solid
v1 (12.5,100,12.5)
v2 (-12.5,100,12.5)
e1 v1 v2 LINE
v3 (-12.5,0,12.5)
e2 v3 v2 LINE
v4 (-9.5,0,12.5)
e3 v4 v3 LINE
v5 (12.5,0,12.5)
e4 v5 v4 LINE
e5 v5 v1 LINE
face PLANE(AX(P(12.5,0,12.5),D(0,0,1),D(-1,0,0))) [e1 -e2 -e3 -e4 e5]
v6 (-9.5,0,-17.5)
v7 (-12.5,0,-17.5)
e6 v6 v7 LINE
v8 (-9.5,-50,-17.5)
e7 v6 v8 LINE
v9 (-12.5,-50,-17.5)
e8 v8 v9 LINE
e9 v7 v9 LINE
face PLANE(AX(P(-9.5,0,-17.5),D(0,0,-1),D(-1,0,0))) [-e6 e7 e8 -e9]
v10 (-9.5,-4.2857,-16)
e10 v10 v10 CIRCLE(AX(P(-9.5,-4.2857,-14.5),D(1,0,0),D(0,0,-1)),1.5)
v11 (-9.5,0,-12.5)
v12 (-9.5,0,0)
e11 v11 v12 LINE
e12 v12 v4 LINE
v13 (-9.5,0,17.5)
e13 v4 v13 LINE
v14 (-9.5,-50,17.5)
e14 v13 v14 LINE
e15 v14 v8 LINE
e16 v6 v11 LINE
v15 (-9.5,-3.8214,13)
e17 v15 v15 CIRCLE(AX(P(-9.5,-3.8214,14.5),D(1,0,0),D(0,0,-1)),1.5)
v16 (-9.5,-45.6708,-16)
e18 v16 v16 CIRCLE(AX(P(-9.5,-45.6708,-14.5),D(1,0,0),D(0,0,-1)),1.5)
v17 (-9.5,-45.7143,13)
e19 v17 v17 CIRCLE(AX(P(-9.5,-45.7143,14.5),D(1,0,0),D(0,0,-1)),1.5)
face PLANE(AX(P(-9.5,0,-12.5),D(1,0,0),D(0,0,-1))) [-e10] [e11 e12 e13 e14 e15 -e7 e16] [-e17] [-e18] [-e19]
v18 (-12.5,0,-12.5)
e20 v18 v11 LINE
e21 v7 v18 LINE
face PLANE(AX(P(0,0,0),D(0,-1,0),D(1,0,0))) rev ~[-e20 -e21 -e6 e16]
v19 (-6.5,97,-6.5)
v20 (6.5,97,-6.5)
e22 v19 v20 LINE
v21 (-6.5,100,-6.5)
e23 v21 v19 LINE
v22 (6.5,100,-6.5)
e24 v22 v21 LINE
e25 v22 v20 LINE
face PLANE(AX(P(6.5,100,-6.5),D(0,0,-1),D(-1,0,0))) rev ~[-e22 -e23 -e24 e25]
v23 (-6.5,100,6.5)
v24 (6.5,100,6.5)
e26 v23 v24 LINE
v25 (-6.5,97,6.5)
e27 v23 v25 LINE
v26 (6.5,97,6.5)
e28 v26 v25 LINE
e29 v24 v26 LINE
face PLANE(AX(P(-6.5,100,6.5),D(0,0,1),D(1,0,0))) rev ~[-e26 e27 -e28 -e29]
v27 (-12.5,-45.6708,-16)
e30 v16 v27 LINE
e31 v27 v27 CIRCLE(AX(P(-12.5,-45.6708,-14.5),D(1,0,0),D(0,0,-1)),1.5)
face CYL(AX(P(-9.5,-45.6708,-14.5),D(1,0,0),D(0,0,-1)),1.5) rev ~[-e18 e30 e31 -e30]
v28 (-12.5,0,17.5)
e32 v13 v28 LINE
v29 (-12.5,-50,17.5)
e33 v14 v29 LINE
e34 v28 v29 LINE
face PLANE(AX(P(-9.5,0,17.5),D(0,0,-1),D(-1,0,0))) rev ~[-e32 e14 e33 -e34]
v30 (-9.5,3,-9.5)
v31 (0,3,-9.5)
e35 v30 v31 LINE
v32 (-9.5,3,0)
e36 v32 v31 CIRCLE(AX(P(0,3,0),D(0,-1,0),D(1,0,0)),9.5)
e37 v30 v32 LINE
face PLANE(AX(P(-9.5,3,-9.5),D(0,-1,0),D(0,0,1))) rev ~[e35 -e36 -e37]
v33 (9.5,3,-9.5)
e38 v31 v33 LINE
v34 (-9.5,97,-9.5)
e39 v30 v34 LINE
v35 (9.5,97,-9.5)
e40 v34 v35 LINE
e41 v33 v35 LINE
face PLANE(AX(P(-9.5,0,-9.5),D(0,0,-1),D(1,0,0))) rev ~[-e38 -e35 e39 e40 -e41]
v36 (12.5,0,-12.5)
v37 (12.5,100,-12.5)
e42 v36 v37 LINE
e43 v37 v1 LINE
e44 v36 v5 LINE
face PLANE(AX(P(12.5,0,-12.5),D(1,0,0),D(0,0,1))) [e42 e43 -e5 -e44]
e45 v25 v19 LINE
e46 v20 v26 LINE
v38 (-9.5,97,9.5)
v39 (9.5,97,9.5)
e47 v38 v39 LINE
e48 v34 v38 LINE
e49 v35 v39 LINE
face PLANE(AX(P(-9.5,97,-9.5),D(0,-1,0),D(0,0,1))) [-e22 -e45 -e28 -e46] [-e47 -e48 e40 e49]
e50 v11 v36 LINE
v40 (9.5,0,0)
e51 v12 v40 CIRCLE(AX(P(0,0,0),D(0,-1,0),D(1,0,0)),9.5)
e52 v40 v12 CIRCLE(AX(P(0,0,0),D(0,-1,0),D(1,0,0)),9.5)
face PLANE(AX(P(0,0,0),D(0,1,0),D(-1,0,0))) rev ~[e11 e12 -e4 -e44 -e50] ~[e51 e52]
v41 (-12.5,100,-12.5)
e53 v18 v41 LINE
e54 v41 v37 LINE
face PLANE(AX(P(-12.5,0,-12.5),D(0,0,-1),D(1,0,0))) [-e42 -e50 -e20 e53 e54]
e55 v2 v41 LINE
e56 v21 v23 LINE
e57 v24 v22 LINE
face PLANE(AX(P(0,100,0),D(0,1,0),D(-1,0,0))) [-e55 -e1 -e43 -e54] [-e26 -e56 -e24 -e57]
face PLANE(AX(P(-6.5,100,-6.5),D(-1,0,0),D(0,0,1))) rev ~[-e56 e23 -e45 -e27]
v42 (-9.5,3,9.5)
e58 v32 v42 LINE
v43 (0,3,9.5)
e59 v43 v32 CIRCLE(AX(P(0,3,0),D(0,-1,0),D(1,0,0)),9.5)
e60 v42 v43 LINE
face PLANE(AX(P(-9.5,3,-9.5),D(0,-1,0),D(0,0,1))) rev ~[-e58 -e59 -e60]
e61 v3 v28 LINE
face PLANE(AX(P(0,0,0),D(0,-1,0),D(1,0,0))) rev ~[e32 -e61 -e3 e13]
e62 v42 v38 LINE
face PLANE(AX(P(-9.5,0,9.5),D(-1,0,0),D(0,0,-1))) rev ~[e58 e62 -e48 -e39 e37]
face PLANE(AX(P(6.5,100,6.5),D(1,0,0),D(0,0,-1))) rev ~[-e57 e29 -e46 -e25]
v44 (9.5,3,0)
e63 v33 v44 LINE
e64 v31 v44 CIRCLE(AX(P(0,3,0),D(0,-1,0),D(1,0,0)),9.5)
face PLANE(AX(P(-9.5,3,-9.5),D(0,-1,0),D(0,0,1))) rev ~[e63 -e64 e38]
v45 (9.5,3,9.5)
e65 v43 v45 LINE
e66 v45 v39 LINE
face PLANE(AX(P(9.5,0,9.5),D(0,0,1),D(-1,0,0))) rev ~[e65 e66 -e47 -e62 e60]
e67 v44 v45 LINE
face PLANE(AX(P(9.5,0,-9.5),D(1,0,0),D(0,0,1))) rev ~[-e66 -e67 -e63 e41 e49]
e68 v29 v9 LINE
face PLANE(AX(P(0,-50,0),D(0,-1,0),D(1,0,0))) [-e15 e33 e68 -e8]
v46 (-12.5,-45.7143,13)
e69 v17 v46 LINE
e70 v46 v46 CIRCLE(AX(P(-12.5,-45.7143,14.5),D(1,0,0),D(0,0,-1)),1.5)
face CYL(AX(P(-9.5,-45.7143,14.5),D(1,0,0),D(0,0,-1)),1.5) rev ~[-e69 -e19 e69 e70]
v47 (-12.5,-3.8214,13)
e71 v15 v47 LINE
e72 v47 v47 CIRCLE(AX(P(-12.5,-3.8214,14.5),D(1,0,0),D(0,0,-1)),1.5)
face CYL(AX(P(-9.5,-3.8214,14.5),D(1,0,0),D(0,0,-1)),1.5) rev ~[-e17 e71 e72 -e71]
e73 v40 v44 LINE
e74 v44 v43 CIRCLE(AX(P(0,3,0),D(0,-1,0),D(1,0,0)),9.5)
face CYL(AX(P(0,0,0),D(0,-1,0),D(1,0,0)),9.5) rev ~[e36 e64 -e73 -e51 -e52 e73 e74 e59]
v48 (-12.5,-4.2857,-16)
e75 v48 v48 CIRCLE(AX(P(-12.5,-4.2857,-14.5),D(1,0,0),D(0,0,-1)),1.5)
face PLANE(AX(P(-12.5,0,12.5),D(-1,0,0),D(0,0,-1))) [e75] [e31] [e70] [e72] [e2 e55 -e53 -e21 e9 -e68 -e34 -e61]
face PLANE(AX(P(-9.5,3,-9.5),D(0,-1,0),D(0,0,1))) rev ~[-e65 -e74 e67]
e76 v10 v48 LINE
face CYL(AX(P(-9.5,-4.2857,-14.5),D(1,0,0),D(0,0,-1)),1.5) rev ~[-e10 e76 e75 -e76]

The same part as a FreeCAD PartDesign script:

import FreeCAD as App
import Part
import Sketcher

V = App.Vector

doc = App.newDocument("Part")
body = doc.addObject("PartDesign::Body", "Body")

sketch1 = doc.addObject("Sketcher::SketchObject", "Sketch")
body.addObject(sketch1)
sketch1.AttachmentSupport = (doc.XZ_Plane, [""])
sketch1.MapMode = "FlatFace"
sketch1.addGeometry([
    Part.LineSegment(V(-12, 12, 0), V(12, 12, 0)),
    Part.LineSegment(V(12, 12, 0), V(12, -12, 0)),
    Part.LineSegment(V(12, -12, 0), V(-12, -12, 0)),
    Part.LineSegment(V(-12, -12, 0), V(-12, 12, 0)),
    Part.LineSegment(V(10, -10, 0), V(10, 10, 0)),
    Part.LineSegment(V(10, 10, 0), V(-10, 10, 0)),
    Part.LineSegment(V(-10, 10, 0), V(-10, -10, 0)),
    Part.LineSegment(V(-10, -10, 0), V(10, -10, 0)),
], False)
sketch1.addConstraint([
    Sketcher.Constraint("Coincident", 0, 2, 1, 1),
    Sketcher.Constraint("Coincident", 1, 2, 2, 1),
    Sketcher.Constraint("Coincident", 2, 2, 3, 1),
    Sketcher.Constraint("Coincident", 3, 2, 0, 1),
    Sketcher.Constraint("Coincident", 4, 2, 5, 1),
    Sketcher.Constraint("Coincident", 5, 2, 6, 1),
    Sketcher.Constraint("Coincident", 6, 2, 7, 1),
    Sketcher.Constraint("Coincident", 7, 2, 4, 1),
    Sketcher.Constraint("Horizontal", 0),
    Sketcher.Constraint("Vertical", 1),
    Sketcher.Constraint("Horizontal", 2),
    Sketcher.Constraint("Vertical", 3),
    Sketcher.Constraint("Vertical", 4),
    Sketcher.Constraint("Horizontal", 5),
    Sketcher.Constraint("Vertical", 6),
    Sketcher.Constraint("Horizontal", 7),
    Sketcher.Constraint("Symmetric", 0, 2, 2, 2, -1, 1),
    Sketcher.Constraint("Symmetric", 4, 2, 6, 2, -1, 1),
    Sketcher.Constraint("Equal", 2, 1),
    Sketcher.Constraint("Equal", 7, 4),
    Sketcher.Constraint("DistanceX", 0, 1, 0, 2, 25.0),
    Sketcher.Constraint("DistanceX", 4, 2, 0, 2, 3.0),
])
pad1 = doc.addObject("PartDesign::Pad", "Pad")
body.addObject(pad1)
pad1.Profile = sketch1
pad1.Length = 100
pad1.Reversed = True

sketch2 = doc.addObject("Sketcher::SketchObject", "Sketch001")
body.addObject(sketch2)
sketch2.AttachmentSupport = (doc.YZ_Plane, [""])
sketch2.MapMode = "FlatFace"
sketch2.AttachmentOffset = App.Placement(V(0, 0, -9.5), App.Rotation())
sketch2.addGeometry([
    Part.LineSegment(V(100, 9.5, 0), V(97, 9.5, 0)),
    Part.LineSegment(V(97, 9.5, 0), V(97, -9.5, 0)),
    Part.LineSegment(V(97, -9.5, 0), V(100, -9.5, 0)),
    Part.LineSegment(V(100, -9.5, 0), V(100, 9.5, 0)),
], False)
sketch2.addConstraint([
    Sketcher.Constraint("Coincident", 0, 2, 1, 1),
    Sketcher.Constraint("Coincident", 1, 2, 2, 1),
    Sketcher.Constraint("Coincident", 2, 2, 3, 1),
    Sketcher.Constraint("Coincident", 3, 2, 0, 1),
    Sketcher.Constraint("Horizontal", 0),
    Sketcher.Constraint("Vertical", 1),
    Sketcher.Constraint("Horizontal", 2),
    Sketcher.Constraint("Vertical", 3),
    Sketcher.Constraint("DistanceX", 0, 2, 0, 1, 3.0),
    Sketcher.Constraint("DistanceY", 1, 2, 1, 1, 19.0),
    Sketcher.Constraint("DistanceX", -1, 1, 0, 2, 97.0),
    Sketcher.Constraint("DistanceY", -1, 1, 0, 2, 9.5),
])
pad2 = doc.addObject("PartDesign::Pad", "Pad001")
body.addObject(pad2)
pad2.Profile = sketch2
pad2.Length = 19

sketch3 = doc.addObject("Sketcher::SketchObject", "Sketch002")
body.addObject(sketch3)
sketch3.AttachmentSupport = (doc.XZ_Plane, [""])
sketch3.MapMode = "FlatFace"
sketch3.AttachmentOffset = App.Placement(V(0, 0, -100), App.Rotation())
sketch3.addGeometry([
    Part.LineSegment(V(6, 6, 0), V(6, -6, 0)),
    Part.LineSegment(V(6, -6, 0), V(-6, -6, 0)),
    Part.LineSegment(V(-6, -6, 0), V(-6, 6, 0)),
    Part.LineSegment(V(-6, 6, 0), V(6, 6, 0)),
], False)
sketch3.addConstraint([
    Sketcher.Constraint("Coincident", 0, 2, 1, 1),
    Sketcher.Constraint("Coincident", 1, 2, 2, 1),
    Sketcher.Constraint("Coincident", 2, 2, 3, 1),
    Sketcher.Constraint("Coincident", 3, 2, 0, 1),
    Sketcher.Constraint("Vertical", 0),
    Sketcher.Constraint("Horizontal", 1),
    Sketcher.Constraint("Vertical", 2),
    Sketcher.Constraint("Horizontal", 3),
    Sketcher.Constraint("Symmetric", 0, 2, 2, 2, -1, 1),
    Sketcher.Constraint("Equal", 3, 0),
    Sketcher.Constraint("DistanceX", 1, 2, 1, 1, 13.0),
])
pocket1 = doc.addObject("PartDesign::Pocket", "Pocket")
body.addObject(pocket1)
pocket1.Profile = sketch3
pocket1.Length = 200
pocket1.Reversed = True

sketch4 = doc.addObject("Sketcher::SketchObject", "Sketch003")
body.addObject(sketch4)
sketch4.AttachmentSupport = (doc.YZ_Plane, [""])
sketch4.MapMode = "FlatFace"
sketch4.AttachmentOffset = App.Placement(V(0, 0, -9.5), App.Rotation())
sketch4.addGeometry([
    Part.LineSegment(V(3, 9.5, 0), V(0, 9.5, 0)),
    Part.LineSegment(V(0, 9.5, 0), V(0, -9.5, 0)),
    Part.LineSegment(V(0, -9.5, 0), V(3, -9.5, 0)),
    Part.LineSegment(V(3, -9.5, 0), V(3, 9.5, 0)),
], False)
sketch4.addConstraint([
    Sketcher.Constraint("Coincident", 0, 2, 1, 1),
    Sketcher.Constraint("Coincident", 1, 2, 2, 1),
    Sketcher.Constraint("Coincident", 2, 2, 3, 1),
    Sketcher.Constraint("Coincident", 3, 2, 0, 1),
    Sketcher.Constraint("Horizontal", 0),
    Sketcher.Constraint("Vertical", 1),
    Sketcher.Constraint("Horizontal", 2),
    Sketcher.Constraint("Vertical", 3),
    Sketcher.Constraint("Symmetric", 0, 2, 1, 2, -1, 1),
    Sketcher.Constraint("DistanceX", 0, 2, 0, 1, 3.0),
    Sketcher.Constraint("DistanceY", 1, 2, 1, 1, 19.0),
])
pad3 = doc.addObject("PartDesign::Pad", "Pad002")
body.addObject(pad3)
pad3.Profile = sketch4
pad3.Length = 19

sketch5 = doc.addObject("Sketcher::SketchObject", "Sketch004")
body.addObject(sketch5)
sketch5.AttachmentSupport = (doc.XZ_Plane, [""])
sketch5.MapMode = "FlatFace"
sketch5.addGeometry(Part.Circle(V(0, 0, 0), V(0, 0, 1), 5), False)
sketch5.addConstraint([
    Sketcher.Constraint("Coincident", 0, 3, -1, 1),
    Sketcher.Constraint("Diameter", 0, 10.0),
])
pocket2 = doc.addObject("PartDesign::Pocket", "Pocket001")
body.addObject(pocket2)
pocket2.Profile = sketch5
pocket2.Length = 200

sketch6 = doc.addObject("Sketcher::SketchObject", "Sketch005")
body.addObject(sketch6)
sketch6.AttachmentSupport = (doc.XZ_Plane, [""])
sketch6.MapMode = "FlatFace"
sketch6.addGeometry(Part.Circle(V(0, 0, 0), V(0, 0, 1), 10), False)
sketch6.addConstraint([
    Sketcher.Constraint("Coincident", 0, 3, -1, 1),
    Sketcher.Constraint("Diameter", 0, 19.0),
])
pocket3 = doc.addObject("PartDesign::Pocket", "Pocket002")
body.addObject(pocket3)
pocket3.Profile = sketch6
pocket3.Length = 10

sketch7 = doc.addObject("Sketcher::SketchObject", "Sketch006")
body.addObject(sketch7)
sketch7.AttachmentSupport = (doc.XZ_Plane, [""])
sketch7.MapMode = "FlatFace"
sketch7.addGeometry([
    Part.LineSegment(V(-9.5, -17.5, 0), V(-9.5, 17.5, 0)),
    Part.LineSegment(V(-9.5, 17.5, 0), V(-12.5, 17.5, 0)),
    Part.LineSegment(V(-12.5, 17.5, 0), V(-12.5, -17.5, 0)),
    Part.LineSegment(V(-12.5, -17.5, 0), V(-9.5, -17.5, 0)),
], False)
sketch7.addConstraint([
    Sketcher.Constraint("Coincident", 0, 2, 1, 1),
    Sketcher.Constraint("Coincident", 1, 2, 2, 1),
    Sketcher.Constraint("Coincident", 2, 2, 3, 1),
    Sketcher.Constraint("Coincident", 3, 2, 0, 1),
    Sketcher.Constraint("Vertical", 0),
    Sketcher.Constraint("Horizontal", 1),
    Sketcher.Constraint("Vertical", 2),
    Sketcher.Constraint("Horizontal", 3),
    Sketcher.Constraint("DistanceX", 1, 2, 1, 1, 3.0),
    Sketcher.Constraint("DistanceY", 0, 1, 0, 2, 35.0),
    Sketcher.Constraint("DistanceX", 0, 2, -1, 1, 9.5),
    Sketcher.Constraint("DistanceY", -1, 1, 0, 2, 17.5),
])
pad4 = doc.addObject("PartDesign::Pad", "Pad003")
body.addObject(pad4)
pad4.Profile = sketch7
pad4.Length = 50

sketch8 = doc.addObject("Sketcher::SketchObject", "Sketch007")
body.addObject(sketch8)
sketch8.AttachmentSupport = (doc.YZ_Plane, [""])
sketch8.MapMode = "FlatFace"
sketch8.AttachmentOffset = App.Placement(V(0, 0, -9.5), App.Rotation())
sketch8.addGeometry([
    Part.Circle(V(-45.7, 14.5, 0), V(0, 0, 1), 1.5),
    Part.Circle(V(-3.8, 14.5, 0), V(0, 0, 1), 1.5),
    Part.Circle(V(-4.3, -14.5, 0), V(0, 0, 1), 1.5),
    Part.Circle(V(-45.7, -14.5, 0), V(0, 0, 1), 1.5),
], False)
sketch8.addConstraint([
    Sketcher.Constraint("Equal", 0, 1),
    Sketcher.Constraint("Equal", 1, 2),
    Sketcher.Constraint("Equal", 2, 3),
    Sketcher.Constraint("Horizontal", 0, 3, 1, 3),
    Sketcher.Constraint("Horizontal", 2, 3, 3, 3),
    Sketcher.Constraint("Diameter", 0, 3.0),
    Sketcher.Constraint("DistanceY", 2, 3, 1, 3, 29.0),
    Sketcher.Constraint("DistanceY", -1, 1, 0, 3, 14.5),
    Sketcher.Constraint("DistanceX", 0, 3, 1, 3, 41.893),
    Sketcher.Constraint("DistanceX", 3, 3, 2, 3, 41.385),
    Sketcher.Constraint("DistanceX", 0, 3, -1, 1, 45.7143),
    Sketcher.Constraint("DistanceX", 2, 3, -1, 1, 4.2857),
])
pocket4 = doc.addObject("PartDesign::Pocket", "Pocket003")
body.addObject(pocket4)
pocket4.Profile = sketch8
pocket4.Type = "ThroughAll"

doc.recompute()
